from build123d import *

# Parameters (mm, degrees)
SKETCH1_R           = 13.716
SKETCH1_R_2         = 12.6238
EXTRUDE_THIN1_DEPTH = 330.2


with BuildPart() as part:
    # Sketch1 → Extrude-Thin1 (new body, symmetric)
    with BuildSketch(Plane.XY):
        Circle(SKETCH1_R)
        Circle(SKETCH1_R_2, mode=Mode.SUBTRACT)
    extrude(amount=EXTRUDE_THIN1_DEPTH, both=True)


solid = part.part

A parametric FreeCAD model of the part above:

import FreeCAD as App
import Part
import Sketcher
from FreeCAD import Vector
Q = App.Units.Quantity

doc = App.newDocument("Part")
params = doc.addObject("Spreadsheet::Sheet", "Params")
for row, (alias, value) in enumerate([
    ("sketch1_diameter", "1.08 in"),
    ("sketch1_diameter2", "0.994 in"),
    ("pad1_length", "26 in"),
], start=1):
    params.set(f"A{row}", alias)
    params.set(f"B{row}", "=" + value)
    params.setAlias(f"B{row}", alias)

body = doc.addObject("PartDesign::Body", "Body")

sketch1 = doc.addObject("Sketcher::SketchObject", "Sketch")
body.addObject(sketch1)
sketch1.AttachmentSupport = (doc.XY_Plane, [""])
sketch1.MapMode = "FlatFace"
sketch1.addGeometry([
    Part.Circle(Vector(0, 0, 0), Vector(0, 0, 1), 13.716),
    Part.Circle(Vector(0, 0, 0), Vector(0, 0, 1), 12.6238),
], False)
sketch1.addConstraint([
    Sketcher.Constraint("Coincident", 0, 3, -1, 1),
    Sketcher.Constraint("Coincident", 1, 3, -1, 1),
    Sketcher.Constraint("Diameter", 0, Q("1.08 in")),
    Sketcher.Constraint("Diameter", 1, Q("0.994 in")),
])
sketch1.setExpression("Constraints[2]", "Params.sketch1_diameter")
sketch1.setExpression("Constraints[3]", "Params.sketch1_diameter2")
pad1 = doc.addObject("PartDesign::Pad", "Pad")
body.addObject(pad1)
pad1.Profile = sketch1
pad1.setExpression("Length", "Params.pad1_length")
pad1.Midplane = True

doc.recompute()
